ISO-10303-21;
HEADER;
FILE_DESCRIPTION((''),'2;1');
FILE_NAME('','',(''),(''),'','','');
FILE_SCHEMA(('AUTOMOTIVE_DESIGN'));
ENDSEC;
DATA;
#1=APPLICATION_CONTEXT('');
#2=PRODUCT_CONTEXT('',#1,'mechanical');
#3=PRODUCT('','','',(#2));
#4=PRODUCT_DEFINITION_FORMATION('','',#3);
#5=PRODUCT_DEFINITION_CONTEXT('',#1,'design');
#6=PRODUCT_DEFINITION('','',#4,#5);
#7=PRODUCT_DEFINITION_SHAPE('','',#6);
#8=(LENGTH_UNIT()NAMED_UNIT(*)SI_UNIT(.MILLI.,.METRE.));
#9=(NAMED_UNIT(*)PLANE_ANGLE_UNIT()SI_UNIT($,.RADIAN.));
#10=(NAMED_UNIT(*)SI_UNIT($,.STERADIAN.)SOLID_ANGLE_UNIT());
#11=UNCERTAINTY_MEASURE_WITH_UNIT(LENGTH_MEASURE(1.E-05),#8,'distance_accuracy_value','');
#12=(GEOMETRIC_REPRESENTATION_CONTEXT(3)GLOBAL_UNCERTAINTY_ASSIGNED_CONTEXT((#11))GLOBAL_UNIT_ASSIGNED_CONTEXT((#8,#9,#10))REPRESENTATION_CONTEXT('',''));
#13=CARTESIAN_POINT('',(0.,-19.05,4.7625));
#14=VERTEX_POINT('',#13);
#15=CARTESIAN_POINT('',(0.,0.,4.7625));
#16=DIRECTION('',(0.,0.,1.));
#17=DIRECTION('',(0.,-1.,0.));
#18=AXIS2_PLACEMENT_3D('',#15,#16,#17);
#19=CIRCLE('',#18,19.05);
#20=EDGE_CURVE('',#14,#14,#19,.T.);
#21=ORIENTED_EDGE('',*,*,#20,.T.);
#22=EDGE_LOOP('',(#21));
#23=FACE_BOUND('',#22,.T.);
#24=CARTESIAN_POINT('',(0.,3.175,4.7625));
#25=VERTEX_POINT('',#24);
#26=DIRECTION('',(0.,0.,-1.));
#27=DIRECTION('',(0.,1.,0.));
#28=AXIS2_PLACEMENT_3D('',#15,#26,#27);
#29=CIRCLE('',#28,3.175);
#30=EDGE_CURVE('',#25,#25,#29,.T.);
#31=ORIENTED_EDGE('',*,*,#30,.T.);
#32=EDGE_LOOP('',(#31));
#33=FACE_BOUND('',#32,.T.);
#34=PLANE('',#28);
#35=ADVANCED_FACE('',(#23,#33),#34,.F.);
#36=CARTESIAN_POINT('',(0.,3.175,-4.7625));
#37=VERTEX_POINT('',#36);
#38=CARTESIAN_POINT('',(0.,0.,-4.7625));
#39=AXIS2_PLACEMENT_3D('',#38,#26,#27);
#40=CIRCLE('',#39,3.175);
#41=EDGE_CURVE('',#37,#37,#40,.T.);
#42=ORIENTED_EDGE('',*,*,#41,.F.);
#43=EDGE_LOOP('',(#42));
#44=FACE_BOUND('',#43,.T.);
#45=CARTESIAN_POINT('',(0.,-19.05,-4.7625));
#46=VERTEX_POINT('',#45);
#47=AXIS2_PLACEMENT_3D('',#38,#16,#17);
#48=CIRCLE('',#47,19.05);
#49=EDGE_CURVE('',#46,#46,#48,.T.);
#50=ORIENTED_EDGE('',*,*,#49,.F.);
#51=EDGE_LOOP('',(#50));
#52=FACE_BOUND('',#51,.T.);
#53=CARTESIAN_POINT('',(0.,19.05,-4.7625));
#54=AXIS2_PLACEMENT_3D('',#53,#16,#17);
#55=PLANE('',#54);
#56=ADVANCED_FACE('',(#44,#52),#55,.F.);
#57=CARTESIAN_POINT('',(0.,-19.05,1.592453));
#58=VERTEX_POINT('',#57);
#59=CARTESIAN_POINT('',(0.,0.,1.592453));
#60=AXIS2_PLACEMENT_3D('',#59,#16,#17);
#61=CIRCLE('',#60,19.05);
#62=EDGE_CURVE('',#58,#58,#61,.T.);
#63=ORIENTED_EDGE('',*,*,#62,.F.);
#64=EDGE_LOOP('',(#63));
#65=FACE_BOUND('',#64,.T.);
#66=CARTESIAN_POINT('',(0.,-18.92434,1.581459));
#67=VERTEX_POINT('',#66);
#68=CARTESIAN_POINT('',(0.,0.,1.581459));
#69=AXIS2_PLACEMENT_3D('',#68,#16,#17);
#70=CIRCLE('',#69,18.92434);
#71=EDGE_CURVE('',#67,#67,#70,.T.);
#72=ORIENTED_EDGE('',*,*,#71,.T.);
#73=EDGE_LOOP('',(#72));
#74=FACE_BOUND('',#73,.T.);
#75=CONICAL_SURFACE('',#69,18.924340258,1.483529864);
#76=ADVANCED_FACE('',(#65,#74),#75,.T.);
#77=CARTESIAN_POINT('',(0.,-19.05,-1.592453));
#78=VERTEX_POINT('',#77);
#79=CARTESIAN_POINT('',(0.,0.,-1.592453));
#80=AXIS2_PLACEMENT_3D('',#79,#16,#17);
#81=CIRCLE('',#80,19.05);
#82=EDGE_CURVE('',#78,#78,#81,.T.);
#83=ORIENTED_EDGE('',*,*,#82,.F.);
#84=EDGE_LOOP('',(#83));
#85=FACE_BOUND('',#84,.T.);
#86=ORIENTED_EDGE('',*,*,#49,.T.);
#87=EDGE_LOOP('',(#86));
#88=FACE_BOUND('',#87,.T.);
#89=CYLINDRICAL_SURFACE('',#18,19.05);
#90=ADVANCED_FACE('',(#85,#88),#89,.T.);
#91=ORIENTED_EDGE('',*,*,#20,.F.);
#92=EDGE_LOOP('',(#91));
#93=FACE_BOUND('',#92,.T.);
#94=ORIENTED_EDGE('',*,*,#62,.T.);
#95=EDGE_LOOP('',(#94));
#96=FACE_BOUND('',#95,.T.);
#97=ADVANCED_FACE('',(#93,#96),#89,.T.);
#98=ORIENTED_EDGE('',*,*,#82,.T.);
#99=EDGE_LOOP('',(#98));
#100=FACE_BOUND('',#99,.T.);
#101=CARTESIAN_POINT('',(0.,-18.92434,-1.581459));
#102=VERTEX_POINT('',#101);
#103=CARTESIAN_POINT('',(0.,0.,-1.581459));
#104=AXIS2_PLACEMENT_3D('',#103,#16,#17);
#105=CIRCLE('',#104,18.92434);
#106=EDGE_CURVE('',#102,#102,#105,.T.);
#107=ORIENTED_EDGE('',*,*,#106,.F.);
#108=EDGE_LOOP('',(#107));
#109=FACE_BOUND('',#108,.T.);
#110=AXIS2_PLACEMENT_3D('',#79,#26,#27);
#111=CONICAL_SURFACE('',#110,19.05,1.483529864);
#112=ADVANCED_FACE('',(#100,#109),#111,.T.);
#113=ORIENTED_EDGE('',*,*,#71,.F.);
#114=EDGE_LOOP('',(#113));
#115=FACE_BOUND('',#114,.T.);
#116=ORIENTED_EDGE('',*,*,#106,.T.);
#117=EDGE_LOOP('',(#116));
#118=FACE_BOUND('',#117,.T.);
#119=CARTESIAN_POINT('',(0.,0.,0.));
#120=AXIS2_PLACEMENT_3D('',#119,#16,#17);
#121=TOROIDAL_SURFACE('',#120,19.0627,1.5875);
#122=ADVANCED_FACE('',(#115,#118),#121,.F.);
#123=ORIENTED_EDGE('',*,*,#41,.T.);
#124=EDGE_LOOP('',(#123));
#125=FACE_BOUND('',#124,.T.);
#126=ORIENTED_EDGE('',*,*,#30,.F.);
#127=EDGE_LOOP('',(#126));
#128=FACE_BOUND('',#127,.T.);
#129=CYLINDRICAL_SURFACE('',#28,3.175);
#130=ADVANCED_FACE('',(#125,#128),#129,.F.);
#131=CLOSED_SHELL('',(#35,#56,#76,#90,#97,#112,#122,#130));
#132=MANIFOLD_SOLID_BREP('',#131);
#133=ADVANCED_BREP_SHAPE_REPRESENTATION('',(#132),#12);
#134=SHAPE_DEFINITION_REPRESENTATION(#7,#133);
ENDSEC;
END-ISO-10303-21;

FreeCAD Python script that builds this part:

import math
import FreeCAD as App
import Part
import Sketcher

V = App.Vector
Q = App.Units.Quantity

doc = App.newDocument("Part")
body = doc.addObject("PartDesign::Body", "Body")

sketch1 = body.newObject("Sketcher::SketchObject", "Sketch")
sketch1.AttachmentSupport = (doc.getObject("YZ_Plane"), [""])
sketch1.MapMode = "FlatFace"
sketch1.addGeometry([
    Part.LineSegment(V(19.05, -4.7625, 0), V(19.05, -1.592453, 0)),
    Part.LineSegment(V(19.05, -1.592453, 0), V(18.92434, -1.581459, 0)),
    Part.ArcOfCircle(Part.Circle(V(19.0627, 0, 0), V(0, 0, 1), 1.5875), math.radians(95), math.radians(265)),
    Part.LineSegment(V(18.92434, 1.581459, 0), V(19.05, 1.592453, 0)),
    Part.LineSegment(V(19.05, 1.592453, 0), V(19.05, 4.7625, 0)),
    Part.LineSegment(V(19.05, 4.7625, 0), V(0, 4.7625, 0)),
    Part.LineSegment(V(0, 4.7625, 0), V(0, -4.7625, 0)),
    Part.LineSegment(V(0, -4.7625, 0), V(19.05, -4.7625, 0)),
], False)
sketch1.addConstraint([
    Sketcher.Constraint("Coincident", 0, 2, 1, 1),
    Sketcher.Constraint("Tangent", 1, 2, 2, 2),
    Sketcher.Constraint("Tangent", 2, 1, 3, 1),
    Sketcher.Constraint("Coincident", 3, 2, 4, 1),
    Sketcher.Constraint("Coincident", 4, 2, 5, 1),
    Sketcher.Constraint("Coincident", 5, 2, 6, 1),
    Sketcher.Constraint("Coincident", 6, 2, 7, 1),
    Sketcher.Constraint("Coincident", 7, 2, 0, 1),
    Sketcher.Constraint("Vertical", 0),
    Sketcher.Constraint("Vertical", 4),
    Sketcher.Constraint("Horizontal", 5),
    Sketcher.Constraint("Vertical", 6),
    Sketcher.Constraint("Horizontal", 7),
    Sketcher.Constraint("Symmetric", 5, 2, 6, 2, -1, 1),
    Sketcher.Constraint("Symmetric", 1, 2, 2, 1, -1),
    Sketcher.Constraint("Vertical", 0, 2, 3, 2),
    Sketcher.Constraint("Angle", 1, Q("175 deg")),
    Sketcher.Constraint("Radius", 2, Q("0.0625 in")),
    Sketcher.Constraint("DistanceX", 5, 2, 5, 1, Q("0.75 in")),
    Sketcher.Constraint("DistanceY", 6, 2, 6, 1, Q("0.375 in")),
    Sketcher.Constraint("DistanceX", -1, 1, 2, 3, Q("0.7505 in")),
])
revolution = body.newObject("PartDesign::Revolution", "Revolution")
revolution.Profile = sketch1
revolution.ReferenceAxis = (sketch1, ["V_Axis"])
revolution.Angle = 360

sketch2 = body.newObject("Sketcher::SketchObject", "Sketch001")
sketch2.AttachmentSupport = (doc.getObject("XY_Plane"), [""])
sketch2.MapMode = "FlatFace"
sketch2.AttachmentOffset = App.Placement(V(0, 0, -0.1875 * 25.4), App.Rotation())
sketch2.addGeometry(Part.Circle(V(0, 0, 0), V(0, 0, 1), 3.175), False)
sketch2.addConstraint([
    Sketcher.Constraint("Coincident", 0, 3, -1, 1),
    Sketcher.Constraint("Diameter", 0, Q("0.25 in")),
])
pocket1 = body.newObject("PartDesign::Pocket", "Pocket")
pocket1.Profile = sketch2
pocket1.Length = Q("0.375 in")
pocket1.Reversed = True

doc.recompute()
